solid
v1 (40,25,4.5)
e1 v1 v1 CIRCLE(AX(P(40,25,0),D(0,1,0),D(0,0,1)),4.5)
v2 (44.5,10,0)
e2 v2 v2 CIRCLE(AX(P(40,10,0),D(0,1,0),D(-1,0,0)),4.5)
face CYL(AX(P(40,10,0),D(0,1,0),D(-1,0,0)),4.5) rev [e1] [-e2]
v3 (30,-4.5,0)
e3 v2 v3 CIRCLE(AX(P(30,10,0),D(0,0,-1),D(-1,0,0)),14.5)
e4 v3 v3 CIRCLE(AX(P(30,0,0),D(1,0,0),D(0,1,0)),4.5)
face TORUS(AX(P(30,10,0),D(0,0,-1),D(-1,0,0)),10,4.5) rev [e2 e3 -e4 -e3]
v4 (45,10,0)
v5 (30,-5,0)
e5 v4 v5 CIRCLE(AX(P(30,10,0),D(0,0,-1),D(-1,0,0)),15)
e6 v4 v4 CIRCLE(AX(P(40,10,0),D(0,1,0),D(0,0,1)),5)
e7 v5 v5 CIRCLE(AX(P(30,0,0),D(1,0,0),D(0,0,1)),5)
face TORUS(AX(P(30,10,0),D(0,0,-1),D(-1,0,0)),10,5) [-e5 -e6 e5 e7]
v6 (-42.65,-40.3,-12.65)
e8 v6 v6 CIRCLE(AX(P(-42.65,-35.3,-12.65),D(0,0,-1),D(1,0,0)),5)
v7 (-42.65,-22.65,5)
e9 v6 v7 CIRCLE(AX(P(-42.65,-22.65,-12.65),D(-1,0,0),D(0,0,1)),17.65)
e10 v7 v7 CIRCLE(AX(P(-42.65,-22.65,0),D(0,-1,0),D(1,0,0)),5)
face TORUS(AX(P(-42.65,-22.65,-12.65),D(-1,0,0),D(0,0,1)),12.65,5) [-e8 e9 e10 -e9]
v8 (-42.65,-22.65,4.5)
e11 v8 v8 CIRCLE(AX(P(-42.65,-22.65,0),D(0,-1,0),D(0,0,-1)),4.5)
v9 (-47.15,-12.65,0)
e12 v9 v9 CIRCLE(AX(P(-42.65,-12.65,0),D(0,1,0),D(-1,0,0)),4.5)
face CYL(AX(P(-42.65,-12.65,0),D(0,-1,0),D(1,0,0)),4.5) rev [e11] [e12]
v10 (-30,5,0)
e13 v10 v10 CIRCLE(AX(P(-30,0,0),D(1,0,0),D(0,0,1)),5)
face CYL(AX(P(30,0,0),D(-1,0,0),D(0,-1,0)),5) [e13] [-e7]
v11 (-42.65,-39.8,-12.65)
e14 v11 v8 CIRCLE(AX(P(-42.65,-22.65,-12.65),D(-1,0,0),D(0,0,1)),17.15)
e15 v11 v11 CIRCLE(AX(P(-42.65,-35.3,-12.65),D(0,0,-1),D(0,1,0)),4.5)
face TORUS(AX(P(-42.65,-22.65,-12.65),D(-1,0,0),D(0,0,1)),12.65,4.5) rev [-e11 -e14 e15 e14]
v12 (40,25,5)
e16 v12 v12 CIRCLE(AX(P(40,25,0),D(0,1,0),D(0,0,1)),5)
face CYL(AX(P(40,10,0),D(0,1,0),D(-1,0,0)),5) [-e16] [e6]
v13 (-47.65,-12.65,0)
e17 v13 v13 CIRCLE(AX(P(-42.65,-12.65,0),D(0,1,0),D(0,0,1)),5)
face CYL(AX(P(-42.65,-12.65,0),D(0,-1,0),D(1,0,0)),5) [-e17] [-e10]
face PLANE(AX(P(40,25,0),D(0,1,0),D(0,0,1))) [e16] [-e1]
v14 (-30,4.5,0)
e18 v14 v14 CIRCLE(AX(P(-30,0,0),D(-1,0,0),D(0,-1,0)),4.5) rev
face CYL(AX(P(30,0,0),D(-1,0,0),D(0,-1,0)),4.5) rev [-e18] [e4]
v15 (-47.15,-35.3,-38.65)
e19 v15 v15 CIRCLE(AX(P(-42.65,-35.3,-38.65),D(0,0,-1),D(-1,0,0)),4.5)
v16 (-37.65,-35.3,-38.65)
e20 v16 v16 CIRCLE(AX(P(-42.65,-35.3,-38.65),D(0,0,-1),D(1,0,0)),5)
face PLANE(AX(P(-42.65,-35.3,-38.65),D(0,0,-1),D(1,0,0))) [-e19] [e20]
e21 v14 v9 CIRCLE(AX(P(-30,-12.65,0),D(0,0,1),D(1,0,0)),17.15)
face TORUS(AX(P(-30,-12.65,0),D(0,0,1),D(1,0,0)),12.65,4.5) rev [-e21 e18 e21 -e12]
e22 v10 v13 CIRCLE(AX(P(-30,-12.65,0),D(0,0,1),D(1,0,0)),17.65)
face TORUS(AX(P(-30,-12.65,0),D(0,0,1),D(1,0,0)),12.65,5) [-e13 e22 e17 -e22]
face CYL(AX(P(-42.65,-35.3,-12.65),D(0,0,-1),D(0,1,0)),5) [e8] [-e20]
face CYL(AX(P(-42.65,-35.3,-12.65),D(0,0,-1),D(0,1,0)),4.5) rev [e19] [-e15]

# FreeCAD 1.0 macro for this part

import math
import FreeCAD as App
import Part
import Sketcher

V = App.Vector
Q = App.Units.Quantity


def faces_at(feature, points):
    """Names of the faces that lie closest to the given points."""
    faces = feature.Shape.Faces
    near = lambda p: min(range(len(faces)), key=lambda i: faces[i].distToShape(Part.Vertex(*p))[0])
    return sorted({f"Face{near(p) + 1}" for p in points})

doc = App.newDocument("Part")
body = doc.addObject("PartDesign::Body", "Body")

# Sketch on XZ plane
sketch1 = doc.addObject("Sketcher::SketchObject", "Sketch")
body.addObject(sketch1)
sketch1.AttachmentSupport = (doc.XZ_Plane, [""])
sketch1.MapMode = "FlatFace"
sketch1.AttachmentOffset = App.Placement(V(0, 0, -25), App.Rotation())
sketch1.addGeometry(Part.Circle(V(40, 0, 0), V(0, 0, 1), 5), False)
sketch1.addConstraint(Sketcher.Constraint("PointOnObject", 0, 3, -1))
sketch1.addConstraint(Sketcher.Constraint("Diameter", 0, Q("10 mm")))
sketch1.addConstraint(Sketcher.Constraint("DistanceX", -1, 1, 0, 3, Q("40 mm")))

# Sketch on XY plane
sketch2 = doc.addObject("Sketcher::SketchObject", "Sketch001")
body.addObject(sketch2)
sketch2.AttachmentSupport = (doc.XY_Plane, [""])
sketch2.MapMode = "FlatFace"
sketch2.addGeometry(Part.LineSegment(V(40, 25, 0), V(40, 10, 0)), False)
sketch2.addGeometry(Part.ArcOfCircle(Part.Circle(V(30, 10, 0), V(0, 0, 1), 10), math.radians(-90), math.radians(0)), False)
sketch2.addGeometry(Part.LineSegment(V(30, 0, 0), V(-30, 0, 0)), False)
sketch2.addGeometry(Part.ArcOfCircle(Part.Circle(V(-30, -12.65, 0), V(0, 0, 1), 12.65), math.radians(90), math.radians(180)), False)
sketch2.addGeometry(Part.LineSegment(V(-42.65, -12.65, 0), V(-42.65, -22.65, 0)), False)
sketch2.addConstraint(Sketcher.Constraint("Tangent", 0, 2, 1, 2))
sketch2.addConstraint(Sketcher.Constraint("Tangent", 1, 1, 2, 1))
sketch2.addConstraint(Sketcher.Constraint("Tangent", 2, 2, 3, 1))
sketch2.addConstraint(Sketcher.Constraint("Tangent", 3, 2, 4, 1))
sketch2.addConstraint(Sketcher.Constraint("Vertical", 0))
sketch2.addConstraint(Sketcher.Constraint("Horizontal", 2))
sketch2.addConstraint(Sketcher.Constraint("Vertical", 4))
sketch2.addConstraint(Sketcher.Constraint("Symmetric", 1, 1, 2, 2, -1, 1))
sketch2.addConstraint(Sketcher.Constraint("Radius", 1, Q("10 mm")))
sketch2.addConstraint(Sketcher.Constraint("DistanceX", 2, 2, 2, 1, Q("60 mm")))
sketch2.addConstraint(Sketcher.Constraint("DistanceY", 0, 2, 0, 1, Q("15 mm")))
sketch2.addConstraint(Sketcher.Constraint("DistanceY", 4, 2, 4, 1, Q("10 mm")))
sketch2.addConstraint(Sketcher.Constraint("Radius", 3, Q("12.65 mm")))
doc.recompute()

additivepipe = doc.addObject("PartDesign::AdditivePipe", "AdditivePipe")
body.addObject(additivepipe)
additivepipe.Profile = sketch1
additivepipe.Spine = (sketch2, ["Edge1", "Edge2", "Edge3", "Edge4", "Edge5"])

# Sketch on XZ plane
sketch3 = doc.addObject("Sketcher::SketchObject", "Sketch002")
body.addObject(sketch3)
sketch3.AttachmentSupport = (doc.XZ_Plane, [""])
sketch3.MapMode = "FlatFace"
sketch3.AttachmentOffset = App.Placement(V(0, 0, 22.65), App.Rotation())
sketch3.addGeometry(Part.Circle(V(-42.65, 0, 0), V(0, 0, 1), 5), False)
sketch3.addConstraint(Sketcher.Constraint("PointOnObject", 0, 3, -1))
sketch3.addConstraint(Sketcher.Constraint("Diameter", 0, Q("10 mm")))
sketch3.addConstraint(Sketcher.Constraint("DistanceX", 0, 3, -1, 1, Q("42.65 mm")))

# Sketch on YZ plane
sketch4 = doc.addObject("Sketcher::SketchObject", "Sketch003")
body.addObject(sketch4)
sketch4.AttachmentSupport = (doc.YZ_Plane, [""])
sketch4.MapMode = "FlatFace"
sketch4.AttachmentOffset = App.Placement(V(0, 0, -42.65), App.Rotation())
sketch4.addGeometry(Part.ArcOfCircle(Part.Circle(V(-22.65, -12.65, 0), V(0, 0, 1), 12.65), math.radians(90), math.radians(180)), False)
sketch4.addGeometry(Part.LineSegment(V(-35.3, -12.65, 0), V(-35.3, -38.65, 0)), False)
sketch4.addConstraint(Sketcher.Constraint("Tangent", 0, 2, 1, 1))
sketch4.addConstraint(Sketcher.Constraint("Vertical", 1))
sketch4.addConstraint(Sketcher.Constraint("PointOnObject", 0, 1, -1))
sketch4.addConstraint(Sketcher.Constraint("DistanceY", 1, 2, 1, 1, Q("26 mm")))
sketch4.addConstraint(Sketcher.Constraint("Radius", 0, Q("12.65 mm")))
sketch4.addConstraint(Sketcher.Constraint("DistanceX", 0, 2, -1, 1, Q("35.3 mm")))
sketch4.addConstraint(Sketcher.Constraint("DistanceX", 0, 1, -1, 1, Q("22.65 mm")))
doc.recompute()

additivepipe2 = doc.addObject("PartDesign::AdditivePipe", "AdditivePipe001")
body.addObject(additivepipe2)
additivepipe2.Profile = sketch3
additivepipe2.Spine = (sketch4, ["Edge1", "Edge2"])
doc.recompute()

thickness = doc.addObject("PartDesign::Thickness", "Thickness")
body.addObject(thickness)
thickness.Base = (additivepipe2, faces_at(additivepipe2, [(-42.65, -35.3, -38.65), (40, 25, 0)]))
thickness.Value = 0.5
thickness.Reversed = True
thickness.Join = "Intersection"

doc.recompute()
